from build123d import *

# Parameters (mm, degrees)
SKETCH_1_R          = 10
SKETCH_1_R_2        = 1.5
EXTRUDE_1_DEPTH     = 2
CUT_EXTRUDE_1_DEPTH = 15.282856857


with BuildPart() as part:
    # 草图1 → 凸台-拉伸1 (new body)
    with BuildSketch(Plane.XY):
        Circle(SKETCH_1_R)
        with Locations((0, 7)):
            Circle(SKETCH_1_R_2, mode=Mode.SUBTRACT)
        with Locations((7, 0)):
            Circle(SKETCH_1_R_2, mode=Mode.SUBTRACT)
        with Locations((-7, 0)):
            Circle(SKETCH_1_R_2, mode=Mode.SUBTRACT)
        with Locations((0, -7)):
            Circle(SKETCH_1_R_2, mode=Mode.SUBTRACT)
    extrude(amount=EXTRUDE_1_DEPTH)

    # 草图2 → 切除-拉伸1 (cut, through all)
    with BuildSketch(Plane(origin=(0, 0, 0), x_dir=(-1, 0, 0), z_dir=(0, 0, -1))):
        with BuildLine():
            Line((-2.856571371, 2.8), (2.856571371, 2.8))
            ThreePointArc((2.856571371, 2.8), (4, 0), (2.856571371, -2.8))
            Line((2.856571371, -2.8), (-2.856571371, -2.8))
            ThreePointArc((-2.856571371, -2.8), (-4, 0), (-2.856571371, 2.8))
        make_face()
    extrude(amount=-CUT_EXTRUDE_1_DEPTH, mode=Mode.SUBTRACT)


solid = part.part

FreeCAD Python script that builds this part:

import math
import FreeCAD as App
import Part
import Sketcher

doc = App.newDocument("Part")
body = doc.addObject("PartDesign::Body", "Body")

sketch1 = body.newObject("Sketcher::SketchObject", "Sketch")
sketch1.AttachmentSupport = (doc.getObject("XY_Plane"), [""])
sketch1.MapMode = "FlatFace"
sketch1.addGeometry(Part.Circle(App.Vector(0, 0, 0), App.Vector(0, 0, 1), 10), False)
sketch1.addGeometry(Part.Circle(App.Vector(0, -7, 0), App.Vector(0, 0, 1), 1.5), False)
sketch1.addGeometry(Part.Circle(App.Vector(-7, 0, 0), App.Vector(0, 0, 1), 1.5), False)
sketch1.addGeometry(Part.Circle(App.Vector(7, 0, 0), App.Vector(0, 0, 1), 1.5), False)
sketch1.addGeometry(Part.Circle(App.Vector(0, 7, 0), App.Vector(0, 0, 1), 1.5), False)
sketch1.addConstraint(Sketcher.Constraint("Coincident", 0, 3, -1, 1))
sketch1.addConstraint(Sketcher.Constraint("Equal", 1, 2))
sketch1.addConstraint(Sketcher.Constraint("Equal", 2, 3))
sketch1.addConstraint(Sketcher.Constraint("Equal", 3, 4))
sketch1.addConstraint(Sketcher.Constraint("Symmetric", 2, 3, 3, 3, -1, 1))
sketch1.addConstraint(Sketcher.Constraint("Symmetric", 1, 3, 4, 3, -1, 1))
sketch1.addConstraint(Sketcher.Constraint("PointOnObject", 1, 3, -2))
sketch1.addConstraint(Sketcher.Constraint("PointOnObject", 2, 3, -1))
sketch1.addConstraint(Sketcher.Constraint("Diameter", 0, 20.0))
sketch1.addConstraint(Sketcher.Constraint("Diameter", 1, 3.0))
sketch1.addConstraint(Sketcher.Constraint("DistanceY", 1, 3, -1, 1, 7.0))
sketch1.addConstraint(Sketcher.Constraint("DistanceX", 2, 3, -1, 1, 7.0))
pad1 = body.newObject("PartDesign::Pad", "Pad")
pad1.Profile = sketch1
pad1.Length = 2

sketch2 = body.newObject("Sketcher::SketchObject", "Sketch001")
sketch2.AttachmentSupport = (doc.getObject("XY_Plane"), [""])
sketch2.MapMode = "FlatFace"
sketch2.addGeometry(Part.LineSegment(App.Vector(-2.9, 2.8, 0), App.Vector(2.9, 2.8, 0)), False)
sketch2.addGeometry(Part.ArcOfCircle(Part.Circle(App.Vector(0, 0, 0), App.Vector(0, 0, 1), 4), math.radians(-44), math.radians(44)), False)
sketch2.addGeometry(Part.LineSegment(App.Vector(2.9, -2.8, 0), App.Vector(-2.9, -2.8, 0)), False)
sketch2.addGeometry(Part.ArcOfCircle(Part.Circle(App.Vector(0, 0, 0), App.Vector(0, 0, 1), 4), math.radians(136), math.radians(224)), False)
sketch2.addConstraint(Sketcher.Constraint("Coincident", 0, 2, 1, 2))
sketch2.addConstraint(Sketcher.Constraint("Coincident", 1, 1, 2, 1))
sketch2.addConstraint(Sketcher.Constraint("Coincident", 2, 2, 3, 2))
sketch2.addConstraint(Sketcher.Constraint("Coincident", 3, 1, 0, 1))
sketch2.addConstraint(Sketcher.Constraint("Horizontal", 0))
sketch2.addConstraint(Sketcher.Constraint("Horizontal", 2))
sketch2.addConstraint(Sketcher.Constraint("Coincident", 1, 3, -1, 1))
sketch2.addConstraint(Sketcher.Constraint("Coincident", 3, 3, -1, 1))
sketch2.addConstraint(Sketcher.Constraint("Equal", 1, 3))
sketch2.addConstraint(Sketcher.Constraint("Vertical", 0, 2, 1, 1))
sketch2.addConstraint(Sketcher.Constraint("Radius", 1, 4.0))
sketch2.addConstraint(Sketcher.Constraint("DistanceY", -1, 1, 0, 2, 2.8))
pocket1 = body.newObject("PartDesign::Pocket", "Pocket")
pocket1.Profile = sketch2
pocket1.Type = "ThroughAll"
pocket1.Reversed = True

doc.recompute()
